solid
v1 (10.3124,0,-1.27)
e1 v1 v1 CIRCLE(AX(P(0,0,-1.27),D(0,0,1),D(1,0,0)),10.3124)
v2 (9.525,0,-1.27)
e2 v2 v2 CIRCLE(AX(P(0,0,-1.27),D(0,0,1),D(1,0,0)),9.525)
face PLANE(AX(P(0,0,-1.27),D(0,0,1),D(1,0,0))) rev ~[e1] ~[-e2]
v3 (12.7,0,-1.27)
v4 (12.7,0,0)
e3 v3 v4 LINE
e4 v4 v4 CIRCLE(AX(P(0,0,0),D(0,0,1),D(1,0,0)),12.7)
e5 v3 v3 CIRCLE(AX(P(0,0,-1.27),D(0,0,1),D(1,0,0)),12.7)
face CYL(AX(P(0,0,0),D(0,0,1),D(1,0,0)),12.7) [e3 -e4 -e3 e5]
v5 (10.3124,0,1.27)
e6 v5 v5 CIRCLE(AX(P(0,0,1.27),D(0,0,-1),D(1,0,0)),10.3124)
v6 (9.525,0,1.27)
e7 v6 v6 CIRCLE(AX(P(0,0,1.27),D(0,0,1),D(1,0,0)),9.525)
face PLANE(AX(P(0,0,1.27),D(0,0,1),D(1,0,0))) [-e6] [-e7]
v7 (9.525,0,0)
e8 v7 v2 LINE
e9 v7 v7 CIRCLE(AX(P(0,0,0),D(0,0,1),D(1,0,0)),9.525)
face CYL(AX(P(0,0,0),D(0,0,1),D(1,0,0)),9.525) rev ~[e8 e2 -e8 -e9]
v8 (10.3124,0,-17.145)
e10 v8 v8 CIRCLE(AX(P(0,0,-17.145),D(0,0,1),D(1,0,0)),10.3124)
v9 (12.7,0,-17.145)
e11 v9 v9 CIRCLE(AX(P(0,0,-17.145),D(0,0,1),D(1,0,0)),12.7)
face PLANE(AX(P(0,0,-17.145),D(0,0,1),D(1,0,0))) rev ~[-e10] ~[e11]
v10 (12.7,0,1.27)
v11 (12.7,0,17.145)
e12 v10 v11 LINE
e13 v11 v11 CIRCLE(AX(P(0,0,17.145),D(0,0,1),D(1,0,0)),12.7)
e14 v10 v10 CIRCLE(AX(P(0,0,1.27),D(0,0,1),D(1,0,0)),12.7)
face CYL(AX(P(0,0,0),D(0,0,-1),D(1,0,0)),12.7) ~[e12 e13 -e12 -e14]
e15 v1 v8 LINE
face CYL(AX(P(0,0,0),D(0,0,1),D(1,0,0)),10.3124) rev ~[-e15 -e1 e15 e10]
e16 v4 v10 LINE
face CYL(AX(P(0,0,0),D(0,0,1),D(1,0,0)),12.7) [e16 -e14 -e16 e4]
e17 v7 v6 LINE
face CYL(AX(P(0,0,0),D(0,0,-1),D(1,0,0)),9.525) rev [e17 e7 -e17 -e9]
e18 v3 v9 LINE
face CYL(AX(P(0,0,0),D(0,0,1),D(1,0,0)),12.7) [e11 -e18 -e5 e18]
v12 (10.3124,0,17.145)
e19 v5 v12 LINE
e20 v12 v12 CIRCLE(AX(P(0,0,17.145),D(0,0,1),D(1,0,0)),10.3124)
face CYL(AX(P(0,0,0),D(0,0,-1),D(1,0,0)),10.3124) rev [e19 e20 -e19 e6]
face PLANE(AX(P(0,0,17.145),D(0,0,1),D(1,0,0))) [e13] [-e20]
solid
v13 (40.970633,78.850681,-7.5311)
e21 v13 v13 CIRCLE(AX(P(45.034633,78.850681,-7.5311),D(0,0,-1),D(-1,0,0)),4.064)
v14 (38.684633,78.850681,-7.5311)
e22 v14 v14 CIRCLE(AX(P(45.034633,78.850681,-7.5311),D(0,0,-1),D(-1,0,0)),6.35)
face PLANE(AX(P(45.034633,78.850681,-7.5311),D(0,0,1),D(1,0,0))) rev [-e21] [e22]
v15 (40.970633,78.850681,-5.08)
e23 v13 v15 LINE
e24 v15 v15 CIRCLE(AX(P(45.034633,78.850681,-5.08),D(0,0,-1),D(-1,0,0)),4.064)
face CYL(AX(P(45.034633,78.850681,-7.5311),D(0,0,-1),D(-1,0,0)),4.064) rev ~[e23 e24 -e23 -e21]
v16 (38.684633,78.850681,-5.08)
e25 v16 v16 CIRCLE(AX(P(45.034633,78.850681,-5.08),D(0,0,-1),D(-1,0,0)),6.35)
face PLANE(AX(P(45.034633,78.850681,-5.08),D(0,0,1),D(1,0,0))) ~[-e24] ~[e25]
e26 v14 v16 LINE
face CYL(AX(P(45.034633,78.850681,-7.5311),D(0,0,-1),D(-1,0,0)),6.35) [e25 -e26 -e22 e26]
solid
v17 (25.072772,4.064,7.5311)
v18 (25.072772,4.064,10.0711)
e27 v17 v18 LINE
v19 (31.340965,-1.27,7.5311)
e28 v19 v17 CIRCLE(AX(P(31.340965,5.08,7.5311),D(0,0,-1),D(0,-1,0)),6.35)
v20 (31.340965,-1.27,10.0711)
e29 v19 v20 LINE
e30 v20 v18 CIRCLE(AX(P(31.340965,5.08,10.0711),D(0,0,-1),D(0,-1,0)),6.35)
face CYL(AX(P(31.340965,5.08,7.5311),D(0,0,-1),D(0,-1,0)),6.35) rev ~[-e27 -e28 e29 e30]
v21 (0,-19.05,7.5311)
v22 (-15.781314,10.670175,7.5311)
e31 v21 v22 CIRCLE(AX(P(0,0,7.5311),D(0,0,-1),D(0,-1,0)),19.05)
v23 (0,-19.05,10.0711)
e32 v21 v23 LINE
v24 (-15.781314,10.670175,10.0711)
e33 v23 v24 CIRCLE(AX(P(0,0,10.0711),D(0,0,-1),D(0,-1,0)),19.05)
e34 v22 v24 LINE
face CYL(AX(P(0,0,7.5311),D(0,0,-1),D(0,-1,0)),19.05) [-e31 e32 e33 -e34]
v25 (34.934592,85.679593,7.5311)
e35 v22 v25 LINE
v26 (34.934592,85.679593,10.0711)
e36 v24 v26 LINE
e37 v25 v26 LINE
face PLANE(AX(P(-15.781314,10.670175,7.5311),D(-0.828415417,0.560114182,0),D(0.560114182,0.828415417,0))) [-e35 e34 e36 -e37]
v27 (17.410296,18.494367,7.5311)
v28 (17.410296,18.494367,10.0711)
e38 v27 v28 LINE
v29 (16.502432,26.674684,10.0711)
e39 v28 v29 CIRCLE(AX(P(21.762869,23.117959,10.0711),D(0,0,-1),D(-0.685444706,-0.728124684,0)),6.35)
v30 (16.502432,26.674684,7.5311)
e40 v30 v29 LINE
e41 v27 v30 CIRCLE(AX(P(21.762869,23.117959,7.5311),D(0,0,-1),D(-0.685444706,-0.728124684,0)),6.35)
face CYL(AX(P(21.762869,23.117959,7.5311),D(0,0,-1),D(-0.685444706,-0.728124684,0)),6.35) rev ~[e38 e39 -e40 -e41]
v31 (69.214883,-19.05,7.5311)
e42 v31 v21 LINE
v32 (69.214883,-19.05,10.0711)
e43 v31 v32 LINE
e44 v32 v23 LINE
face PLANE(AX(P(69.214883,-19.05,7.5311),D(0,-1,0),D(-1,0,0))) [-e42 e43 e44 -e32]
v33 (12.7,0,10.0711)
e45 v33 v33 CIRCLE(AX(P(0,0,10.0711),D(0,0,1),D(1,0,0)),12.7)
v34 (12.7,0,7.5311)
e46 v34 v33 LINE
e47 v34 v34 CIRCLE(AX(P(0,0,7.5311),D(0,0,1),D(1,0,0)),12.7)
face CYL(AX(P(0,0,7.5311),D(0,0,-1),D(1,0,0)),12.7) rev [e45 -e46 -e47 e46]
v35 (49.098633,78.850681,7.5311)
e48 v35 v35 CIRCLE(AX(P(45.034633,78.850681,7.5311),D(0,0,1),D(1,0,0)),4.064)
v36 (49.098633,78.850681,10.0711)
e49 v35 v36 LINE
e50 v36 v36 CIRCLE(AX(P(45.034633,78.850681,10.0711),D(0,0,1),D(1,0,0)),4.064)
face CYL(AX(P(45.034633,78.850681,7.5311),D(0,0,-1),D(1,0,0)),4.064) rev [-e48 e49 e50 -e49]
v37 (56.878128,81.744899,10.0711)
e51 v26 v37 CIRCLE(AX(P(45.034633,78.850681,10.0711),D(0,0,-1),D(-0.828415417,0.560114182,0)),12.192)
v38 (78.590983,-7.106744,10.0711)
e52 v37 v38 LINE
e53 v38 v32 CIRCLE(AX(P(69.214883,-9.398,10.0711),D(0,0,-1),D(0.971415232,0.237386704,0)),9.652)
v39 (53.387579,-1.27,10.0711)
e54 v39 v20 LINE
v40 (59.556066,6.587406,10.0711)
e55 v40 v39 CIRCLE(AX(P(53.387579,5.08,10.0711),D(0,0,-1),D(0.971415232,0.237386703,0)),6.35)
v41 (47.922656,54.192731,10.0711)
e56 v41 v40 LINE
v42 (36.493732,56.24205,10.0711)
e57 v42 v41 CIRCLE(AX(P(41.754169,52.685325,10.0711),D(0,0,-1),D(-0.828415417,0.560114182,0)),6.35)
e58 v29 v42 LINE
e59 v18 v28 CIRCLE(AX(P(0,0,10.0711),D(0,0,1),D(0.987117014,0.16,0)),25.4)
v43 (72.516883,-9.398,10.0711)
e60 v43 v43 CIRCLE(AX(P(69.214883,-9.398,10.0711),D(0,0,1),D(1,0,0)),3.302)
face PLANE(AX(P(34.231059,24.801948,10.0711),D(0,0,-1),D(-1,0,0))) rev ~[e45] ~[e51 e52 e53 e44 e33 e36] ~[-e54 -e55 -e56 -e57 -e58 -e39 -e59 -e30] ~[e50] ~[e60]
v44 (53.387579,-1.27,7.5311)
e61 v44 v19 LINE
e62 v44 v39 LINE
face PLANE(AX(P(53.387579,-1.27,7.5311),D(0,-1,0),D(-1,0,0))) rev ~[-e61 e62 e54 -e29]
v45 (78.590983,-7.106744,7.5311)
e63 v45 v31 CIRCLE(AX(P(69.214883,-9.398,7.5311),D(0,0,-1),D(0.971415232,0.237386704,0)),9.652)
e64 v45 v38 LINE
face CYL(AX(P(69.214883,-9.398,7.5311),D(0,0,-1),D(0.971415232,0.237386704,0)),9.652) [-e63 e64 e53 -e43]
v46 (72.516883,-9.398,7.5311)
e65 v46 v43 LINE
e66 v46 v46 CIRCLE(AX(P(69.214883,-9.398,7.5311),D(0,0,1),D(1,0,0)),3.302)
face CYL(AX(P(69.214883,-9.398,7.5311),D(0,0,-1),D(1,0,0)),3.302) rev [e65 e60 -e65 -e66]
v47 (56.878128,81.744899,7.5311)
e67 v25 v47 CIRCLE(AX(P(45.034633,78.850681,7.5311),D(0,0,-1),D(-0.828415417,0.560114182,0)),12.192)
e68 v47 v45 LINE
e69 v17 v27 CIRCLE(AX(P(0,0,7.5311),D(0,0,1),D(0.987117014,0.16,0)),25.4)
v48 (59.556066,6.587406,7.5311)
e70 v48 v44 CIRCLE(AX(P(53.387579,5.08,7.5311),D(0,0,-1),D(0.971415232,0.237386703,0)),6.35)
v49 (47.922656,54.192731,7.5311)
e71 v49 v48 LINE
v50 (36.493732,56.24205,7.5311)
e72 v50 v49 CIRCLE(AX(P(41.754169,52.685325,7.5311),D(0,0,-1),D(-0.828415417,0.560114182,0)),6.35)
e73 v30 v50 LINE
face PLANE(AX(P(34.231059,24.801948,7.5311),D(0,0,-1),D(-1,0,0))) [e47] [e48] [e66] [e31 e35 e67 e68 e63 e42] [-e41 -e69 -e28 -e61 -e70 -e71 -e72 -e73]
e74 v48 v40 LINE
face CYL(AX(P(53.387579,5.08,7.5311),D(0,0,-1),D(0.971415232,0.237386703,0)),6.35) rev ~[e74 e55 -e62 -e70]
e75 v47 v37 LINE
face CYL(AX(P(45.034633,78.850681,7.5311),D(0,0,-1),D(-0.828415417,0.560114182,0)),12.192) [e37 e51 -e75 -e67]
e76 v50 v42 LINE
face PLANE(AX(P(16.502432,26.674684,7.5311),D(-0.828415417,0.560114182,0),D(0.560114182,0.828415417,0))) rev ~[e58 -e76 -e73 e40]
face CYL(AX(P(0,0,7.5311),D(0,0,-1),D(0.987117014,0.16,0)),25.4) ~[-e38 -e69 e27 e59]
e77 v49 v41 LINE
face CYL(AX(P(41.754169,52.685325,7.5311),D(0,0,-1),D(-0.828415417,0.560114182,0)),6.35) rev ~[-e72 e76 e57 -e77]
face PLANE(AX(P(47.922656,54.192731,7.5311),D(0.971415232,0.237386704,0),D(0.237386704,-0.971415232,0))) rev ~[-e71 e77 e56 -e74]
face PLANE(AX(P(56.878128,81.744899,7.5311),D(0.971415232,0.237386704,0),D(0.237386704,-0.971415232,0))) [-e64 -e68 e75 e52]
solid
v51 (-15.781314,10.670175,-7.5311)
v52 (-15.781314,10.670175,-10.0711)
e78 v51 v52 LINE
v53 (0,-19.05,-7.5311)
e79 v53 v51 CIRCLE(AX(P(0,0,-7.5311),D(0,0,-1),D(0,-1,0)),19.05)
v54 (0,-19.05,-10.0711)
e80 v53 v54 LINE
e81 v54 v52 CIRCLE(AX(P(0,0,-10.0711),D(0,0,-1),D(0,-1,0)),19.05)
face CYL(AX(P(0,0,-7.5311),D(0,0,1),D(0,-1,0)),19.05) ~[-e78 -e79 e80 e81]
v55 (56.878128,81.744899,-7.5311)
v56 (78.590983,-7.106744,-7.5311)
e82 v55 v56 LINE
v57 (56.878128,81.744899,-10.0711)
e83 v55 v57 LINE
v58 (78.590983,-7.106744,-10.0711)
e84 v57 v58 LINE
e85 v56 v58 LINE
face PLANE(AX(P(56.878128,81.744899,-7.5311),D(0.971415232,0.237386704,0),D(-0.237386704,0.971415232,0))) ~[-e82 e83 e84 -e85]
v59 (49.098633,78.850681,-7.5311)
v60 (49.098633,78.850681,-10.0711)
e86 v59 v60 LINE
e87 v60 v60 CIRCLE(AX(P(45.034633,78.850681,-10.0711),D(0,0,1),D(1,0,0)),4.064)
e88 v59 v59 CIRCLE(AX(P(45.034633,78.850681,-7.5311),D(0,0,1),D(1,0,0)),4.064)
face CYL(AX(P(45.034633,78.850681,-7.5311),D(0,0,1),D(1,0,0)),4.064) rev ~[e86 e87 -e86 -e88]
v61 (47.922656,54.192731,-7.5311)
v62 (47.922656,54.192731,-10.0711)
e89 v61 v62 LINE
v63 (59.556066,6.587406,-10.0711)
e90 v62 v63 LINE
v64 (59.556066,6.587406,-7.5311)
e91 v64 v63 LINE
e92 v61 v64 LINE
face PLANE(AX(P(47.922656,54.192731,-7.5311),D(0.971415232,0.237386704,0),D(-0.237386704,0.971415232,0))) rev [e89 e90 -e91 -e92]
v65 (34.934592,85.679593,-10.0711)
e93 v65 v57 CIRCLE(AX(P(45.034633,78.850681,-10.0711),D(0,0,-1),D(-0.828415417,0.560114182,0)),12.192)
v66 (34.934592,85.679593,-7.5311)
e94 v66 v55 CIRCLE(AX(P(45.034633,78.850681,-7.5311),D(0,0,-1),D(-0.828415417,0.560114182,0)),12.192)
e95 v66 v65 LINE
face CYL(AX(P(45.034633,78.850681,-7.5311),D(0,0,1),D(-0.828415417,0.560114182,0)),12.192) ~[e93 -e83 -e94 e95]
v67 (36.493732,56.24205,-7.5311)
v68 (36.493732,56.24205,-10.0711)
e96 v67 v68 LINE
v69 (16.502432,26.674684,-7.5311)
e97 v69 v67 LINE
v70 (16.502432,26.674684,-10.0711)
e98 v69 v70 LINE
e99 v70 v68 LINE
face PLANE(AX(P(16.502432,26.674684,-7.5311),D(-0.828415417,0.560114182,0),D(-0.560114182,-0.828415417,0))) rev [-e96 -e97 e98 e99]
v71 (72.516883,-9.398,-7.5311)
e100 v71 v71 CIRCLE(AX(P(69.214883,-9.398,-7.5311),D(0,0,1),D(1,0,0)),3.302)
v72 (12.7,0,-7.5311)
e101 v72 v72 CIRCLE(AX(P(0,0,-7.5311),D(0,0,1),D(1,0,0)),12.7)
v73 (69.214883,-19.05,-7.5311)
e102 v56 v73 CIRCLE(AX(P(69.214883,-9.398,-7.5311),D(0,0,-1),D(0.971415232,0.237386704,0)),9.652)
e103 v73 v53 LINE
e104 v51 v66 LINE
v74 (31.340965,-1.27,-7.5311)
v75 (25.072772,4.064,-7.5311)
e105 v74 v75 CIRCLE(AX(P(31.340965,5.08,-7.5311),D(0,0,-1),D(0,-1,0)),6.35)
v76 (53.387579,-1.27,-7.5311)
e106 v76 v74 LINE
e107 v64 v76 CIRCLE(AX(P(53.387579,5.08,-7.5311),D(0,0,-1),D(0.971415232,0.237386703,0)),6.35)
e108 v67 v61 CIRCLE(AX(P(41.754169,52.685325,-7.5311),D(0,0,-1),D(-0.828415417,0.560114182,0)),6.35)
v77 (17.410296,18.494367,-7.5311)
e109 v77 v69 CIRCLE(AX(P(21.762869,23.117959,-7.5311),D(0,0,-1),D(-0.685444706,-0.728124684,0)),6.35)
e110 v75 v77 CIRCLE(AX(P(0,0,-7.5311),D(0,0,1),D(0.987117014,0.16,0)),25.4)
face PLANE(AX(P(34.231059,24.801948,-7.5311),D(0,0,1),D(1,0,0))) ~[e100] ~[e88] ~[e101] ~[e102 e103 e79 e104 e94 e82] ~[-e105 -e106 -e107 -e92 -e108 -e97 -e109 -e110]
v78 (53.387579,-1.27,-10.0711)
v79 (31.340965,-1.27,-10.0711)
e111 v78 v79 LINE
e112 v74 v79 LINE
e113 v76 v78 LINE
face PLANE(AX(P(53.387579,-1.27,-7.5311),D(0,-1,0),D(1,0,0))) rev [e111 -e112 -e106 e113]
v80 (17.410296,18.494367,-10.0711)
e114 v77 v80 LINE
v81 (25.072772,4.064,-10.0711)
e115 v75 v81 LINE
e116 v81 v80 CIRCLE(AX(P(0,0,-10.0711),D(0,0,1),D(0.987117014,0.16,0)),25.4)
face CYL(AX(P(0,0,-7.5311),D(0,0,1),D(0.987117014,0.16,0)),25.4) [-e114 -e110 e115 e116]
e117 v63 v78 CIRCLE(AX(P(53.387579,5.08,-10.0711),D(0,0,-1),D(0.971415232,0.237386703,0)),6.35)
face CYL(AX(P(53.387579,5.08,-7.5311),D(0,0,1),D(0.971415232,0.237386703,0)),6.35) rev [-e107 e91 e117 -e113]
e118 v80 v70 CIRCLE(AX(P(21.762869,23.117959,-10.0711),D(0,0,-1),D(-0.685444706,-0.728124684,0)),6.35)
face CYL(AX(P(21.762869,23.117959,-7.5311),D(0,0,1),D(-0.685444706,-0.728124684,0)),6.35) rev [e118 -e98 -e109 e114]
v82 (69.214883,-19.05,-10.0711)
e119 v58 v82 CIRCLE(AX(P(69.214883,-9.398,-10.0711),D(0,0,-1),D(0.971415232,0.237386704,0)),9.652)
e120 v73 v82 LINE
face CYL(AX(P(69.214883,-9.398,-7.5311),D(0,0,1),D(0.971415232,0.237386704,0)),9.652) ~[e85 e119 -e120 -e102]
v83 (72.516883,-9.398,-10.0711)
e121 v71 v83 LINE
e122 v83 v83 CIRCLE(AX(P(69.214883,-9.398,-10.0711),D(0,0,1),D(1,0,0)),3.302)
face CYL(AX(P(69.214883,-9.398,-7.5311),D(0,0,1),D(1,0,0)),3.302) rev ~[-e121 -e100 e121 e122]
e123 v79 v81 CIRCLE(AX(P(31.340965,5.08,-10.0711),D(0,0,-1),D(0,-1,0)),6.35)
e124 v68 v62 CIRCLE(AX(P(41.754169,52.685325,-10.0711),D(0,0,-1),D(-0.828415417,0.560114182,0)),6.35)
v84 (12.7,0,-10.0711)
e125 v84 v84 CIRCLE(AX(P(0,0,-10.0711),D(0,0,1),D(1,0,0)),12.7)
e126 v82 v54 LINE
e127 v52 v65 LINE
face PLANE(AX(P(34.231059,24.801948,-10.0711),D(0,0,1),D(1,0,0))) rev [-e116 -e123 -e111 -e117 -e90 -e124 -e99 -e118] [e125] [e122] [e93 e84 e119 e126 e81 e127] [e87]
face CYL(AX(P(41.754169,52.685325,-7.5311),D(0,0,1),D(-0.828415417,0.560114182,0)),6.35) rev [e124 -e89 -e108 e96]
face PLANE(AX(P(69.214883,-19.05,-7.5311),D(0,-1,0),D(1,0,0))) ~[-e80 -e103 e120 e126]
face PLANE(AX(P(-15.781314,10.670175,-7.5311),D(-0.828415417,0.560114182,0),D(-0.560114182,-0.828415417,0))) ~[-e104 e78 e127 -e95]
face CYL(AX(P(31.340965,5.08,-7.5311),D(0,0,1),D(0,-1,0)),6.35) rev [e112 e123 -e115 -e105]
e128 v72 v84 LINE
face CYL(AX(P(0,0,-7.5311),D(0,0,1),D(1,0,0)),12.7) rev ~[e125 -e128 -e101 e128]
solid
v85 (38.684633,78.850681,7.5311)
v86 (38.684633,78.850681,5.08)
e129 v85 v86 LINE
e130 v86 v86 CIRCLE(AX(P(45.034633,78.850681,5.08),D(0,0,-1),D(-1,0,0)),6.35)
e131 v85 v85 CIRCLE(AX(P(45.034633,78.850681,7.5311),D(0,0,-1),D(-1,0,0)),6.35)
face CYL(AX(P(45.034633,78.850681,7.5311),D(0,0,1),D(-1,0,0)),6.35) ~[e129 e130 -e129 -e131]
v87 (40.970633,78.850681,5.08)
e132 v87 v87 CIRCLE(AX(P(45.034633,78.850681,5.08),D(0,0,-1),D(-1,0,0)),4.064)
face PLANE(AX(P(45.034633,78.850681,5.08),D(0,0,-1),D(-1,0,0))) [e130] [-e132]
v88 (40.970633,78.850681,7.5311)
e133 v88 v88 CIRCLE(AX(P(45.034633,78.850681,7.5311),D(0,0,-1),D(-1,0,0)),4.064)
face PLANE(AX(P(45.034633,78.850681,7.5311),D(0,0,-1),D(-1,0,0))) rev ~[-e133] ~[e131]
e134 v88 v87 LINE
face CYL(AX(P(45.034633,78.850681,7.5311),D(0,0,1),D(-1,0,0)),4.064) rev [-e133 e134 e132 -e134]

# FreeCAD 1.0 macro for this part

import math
import FreeCAD as App
import Part
import Sketcher
Q = App.Units.Quantity

doc = App.newDocument("Part")
body = doc.addObject("PartDesign::Body", "Body")

# Sketch on XY plane
sketch1 = body.newObject("Sketcher::SketchObject", "Sketch")
sketch1.AttachmentSupport = (doc.getObject("XY_Plane"), [""])
sketch1.MapMode = "FlatFace"
sketch1.addGeometry([
    Part.Circle(App.Vector(0, 0, 0), App.Vector(0, 0, 1), 12.7),
    Part.Circle(App.Vector(0, 0, 0), App.Vector(0, 0, 1), 9.525),
], False)
sketch1.addConstraint([
    Sketcher.Constraint("Coincident", 0, 3, -1, 1),
    Sketcher.Constraint("Coincident", 1, 3, -1, 1),
    Sketcher.Constraint("Diameter", 0, Q("1 in")),
    Sketcher.Constraint("Diameter", 1, Q("0.75 in")),
])
pad1 = body.newObject("PartDesign::Pad", "Pad")
pad1.Profile = sketch1
pad1.Type = "TwoLengths"
pad1.Length = Q("0.05 in")
pad1.Length2 = Q("0.05 in")

# Sketch on XY plane
sketch2 = body.newObject("Sketcher::SketchObject", "Sketch001")
sketch2.AttachmentSupport = (doc.getObject("XY_Plane"), [""])
sketch2.MapMode = "FlatFace"
sketch2.addGeometry([
    Part.Circle(App.Vector(0, 0, 0), App.Vector(0, 0, 1), 12.7),
    Part.Circle(App.Vector(0, 0, 0), App.Vector(0, 0, 1), 10.3124),
], False)
sketch2.addConstraint([
    Sketcher.Constraint("Coincident", 0, 3, -1, 1),
    Sketcher.Constraint("Coincident", 1, 3, -1, 1),
    Sketcher.Constraint("Diameter", 0, Q("1 in")),
    Sketcher.Constraint("Diameter", 1, Q("0.812 in")),
])
pad2 = body.newObject("PartDesign::Pad", "Pad001")
pad2.Profile = sketch2
pad2.Type = "TwoLengths"
pad2.Length = Q("0.675 in")
pad2.Length2 = Q("0.675 in")
body2 = doc.addObject("PartDesign::Body", "Body001")

# Sketch on XY plane
sketch3 = body2.newObject("Sketcher::SketchObject", "Sketch002")
sketch3.AttachmentSupport = (doc.getObject("XY_Plane001"), [""])
sketch3.MapMode = "FlatFace"
sketch3.AttachmentOffset = App.Placement(App.Vector(0, 0, 0.2965 * 25.4), App.Rotation())
sketch3.addGeometry([
    Part.LineSegment(App.Vector(34.934592, 85.679593, 0), App.Vector(-15.781314, 10.670175, 0)),  # 0
    Part.ArcOfCircle(Part.Circle(App.Vector(0, 0, 0), App.Vector(0, 0, 1), 19.05), math.radians(145.936305), math.radians(270)),  # 1
    Part.LineSegment(App.Vector(0, -19.05, 0), App.Vector(69.214883, -19.05, 0)),  # 2
    Part.ArcOfCircle(Part.Circle(App.Vector(69.214883, -9.398, 0), App.Vector(0, 0, 1), 9.652), math.radians(-90), math.radians(13.732353)),  # 3
    Part.LineSegment(App.Vector(78.590983, -7.106744, 0), App.Vector(56.878128, 81.744899, 0)),  # 4
    Part.ArcOfCircle(Part.Circle(App.Vector(45.034633, 78.850681, 0), App.Vector(0, 0, 1), 12.192), math.radians(13.732353), math.radians(145.936305)),  # 5
    Part.Circle(App.Vector(69.214883, -9.398, 0), App.Vector(0, 0, 1), 3.302),  # 6
    Part.LineSegment(App.Vector(53.387579, -1.27, 0), App.Vector(31.340965, -1.27, 0)),  # 7
    Part.ArcOfCircle(Part.Circle(App.Vector(31.340965, 5.08, 0), App.Vector(0, 0, 1), 6.35), math.radians(-170.793104), math.radians(-90)),  # 8
    Part.ArcOfCircle(Part.Circle(App.Vector(0, 0, 0), App.Vector(0, 0, 1), 25.4), math.radians(9.206896), math.radians(46.729409)),  # 9
    Part.ArcOfCircle(Part.Circle(App.Vector(21.762869, 23.117959, 0), App.Vector(0, 0, 1), 6.35), math.radians(145.936305), math.radians(226.729409)),  # 10
    Part.LineSegment(App.Vector(16.502432, 26.674684, 0), App.Vector(36.493732, 56.24205, 0)),  # 11
    Part.ArcOfCircle(Part.Circle(App.Vector(41.754169, 52.685325, 0), App.Vector(0, 0, 1), 6.35), math.radians(13.732353), math.radians(145.936305)),  # 12
    Part.LineSegment(App.Vector(47.922656, 54.192731, 0), App.Vector(59.556066, 6.587406, 0)),  # 13
    Part.ArcOfCircle(Part.Circle(App.Vector(53.387579, 5.08, 0), App.Vector(0, 0, 1), 6.35), math.radians(-90), math.radians(13.732353)),  # 14
    Part.Circle(App.Vector(0, 0, 0), App.Vector(0, 0, 1), 12.7),  # 15
    Part.Circle(App.Vector(45.034633, 78.850681, 0), App.Vector(0, 0, 1), 4.064),  # 16
], False)
sketch3.addConstraint([
    Sketcher.Constraint("Tangent", 0, 2, 1, 1),
    Sketcher.Constraint("Tangent", 1, 2, 2, 1),
    Sketcher.Constraint("Tangent", 2, 2, 3, 1),
    Sketcher.Constraint("Tangent", 3, 2, 4, 1),
    Sketcher.Constraint("Tangent", 4, 2, 5, 1),
    Sketcher.Constraint("Tangent", 5, 2, 0, 1),
    Sketcher.Constraint("Tangent", 7, 2, 8, 2),
    Sketcher.Constraint("Tangent", 8, 1, 9, 1),
    Sketcher.Constraint("Tangent", 9, 2, 10, 2),
    Sketcher.Constraint("Tangent", 10, 1, 11, 1),
    Sketcher.Constraint("Tangent", 11, 2, 12, 2),
    Sketcher.Constraint("Tangent", 12, 1, 13, 1),
    Sketcher.Constraint("Tangent", 13, 2, 14, 2),
    Sketcher.Constraint("Tangent", 14, 1, 7, 1),
    Sketcher.Constraint("Horizontal", 2),
    Sketcher.Constraint("Horizontal", 7),
    Sketcher.Constraint("Coincident", 1, 3, -1, 1),
    Sketcher.Constraint("Coincident", 9, 3, -1, 1),
    Sketcher.Constraint("Coincident", 15, 3, -1, 1),
    Sketcher.Constraint("Coincident", 6, 3, 3, 3),
    Sketcher.Constraint("Coincident", 16, 3, 5, 3),
    Sketcher.Constraint("Equal", 8, 10),
    Sketcher.Constraint("Equal", 10, 12),
    Sketcher.Constraint("Equal", 12, 14),
    Sketcher.Constraint("Parallel", 0, 11),
    Sketcher.Constraint("Parallel", 4, 13),
    Sketcher.Constraint("Diameter", 15, Q("1 in")),
    Sketcher.Constraint("Radius", 9, Q("1 in")),
    Sketcher.Constraint("Diameter", 6, Q("0.26 in")),
    Sketcher.Constraint("Diameter", 16, Q("0.32 in")),
    Sketcher.Constraint("Radius", 1, Q("0.75 in")),
    Sketcher.Constraint("Radius", 3, Q("0.38 in")),
    Sketcher.Constraint("Radius", 5, Q("0.48 in")),
    Sketcher.Constraint("Radius", 8, Q("0.25 in")),
    Sketcher.Constraint("DistanceY", -1, 1, 8, 3, Q("0.2 in")),
    Sketcher.Constraint("DistanceY", -1, 1, 4, 2, Q("81.744899 mm")),
    Sketcher.Constraint("DistanceX", 10, 3, 12, 3, Q("19.9913 mm")),
    Sketcher.Constraint("DistanceX", 3, 3, 3, 2, Q("9.3761 mm")),
    Sketcher.Constraint("DistanceX", 11, 2, 5, 3, Q("8.540902 mm")),
    Sketcher.Constraint("DistanceX", 2, 1, 2, 2, Q("69.214883 mm")),
])
pad3 = body2.newObject("PartDesign::Pad", "Pad002")
pad3.Profile = sketch3
pad3.Length = Q("0.1 in")
body3 = doc.addObject("PartDesign::Body", "Body002")

# Sketch on XY plane
sketch4 = body3.newObject("Sketcher::SketchObject", "Sketch003")
sketch4.AttachmentSupport = (doc.getObject("XY_Plane002"), [""])
sketch4.MapMode = "FlatFace"
sketch4.AttachmentOffset = App.Placement(App.Vector(0, 0, 0.2965 * 25.4), App.Rotation())
sketch4.addGeometry([
    Part.Circle(App.Vector(45.034633, 78.850681, 0), App.Vector(0, 0, 1), 6.35),
    Part.Circle(App.Vector(45.034633, 78.850681, 0), App.Vector(0, 0, 1), 4.064),
], False)
sketch4.addConstraint([
    Sketcher.Constraint("Coincident", 1, 3, 0, 3),
    Sketcher.Constraint("Diameter", 0, Q("0.5 in")),
    Sketcher.Constraint("Diameter", 1, Q("0.32 in")),
    Sketcher.Constraint("DistanceY", -1, 1, 0, 3, Q("78.850681 mm")),
    Sketcher.Constraint("DistanceX", -1, 1, 0, 3, Q("45.034633 mm")),
])
pad4 = body3.newObject("PartDesign::Pad", "Pad003")
pad4.Profile = sketch4
pad4.Length = Q("0.0965 in")
pad4.Reversed = True
body4 = doc.addObject("PartDesign::Body", "Body003")
doc.recompute()

mirroring = doc.addObject("Part::Mirroring", "Mirroring")
mirroring.Source = body2
mirroring.Base = App.Vector(0, 0, 0)
mirroring.Normal = App.Vector(0, 0, 1)
body4.BaseFeature = mirroring
doc.recompute()
body5 = doc.addObject("PartDesign::Body", "Body004")
doc.recompute()

mirroring2 = doc.addObject("Part::Mirroring", "Mirroring001")
mirroring2.Source = body3
mirroring2.Base = App.Vector(0, 0, 0)
mirroring2.Normal = App.Vector(0, 0, 1)
body5.BaseFeature = mirroring2
doc.recompute()
mirroring.Visibility = False
mirroring2.Visibility = False

doc.recompute()
